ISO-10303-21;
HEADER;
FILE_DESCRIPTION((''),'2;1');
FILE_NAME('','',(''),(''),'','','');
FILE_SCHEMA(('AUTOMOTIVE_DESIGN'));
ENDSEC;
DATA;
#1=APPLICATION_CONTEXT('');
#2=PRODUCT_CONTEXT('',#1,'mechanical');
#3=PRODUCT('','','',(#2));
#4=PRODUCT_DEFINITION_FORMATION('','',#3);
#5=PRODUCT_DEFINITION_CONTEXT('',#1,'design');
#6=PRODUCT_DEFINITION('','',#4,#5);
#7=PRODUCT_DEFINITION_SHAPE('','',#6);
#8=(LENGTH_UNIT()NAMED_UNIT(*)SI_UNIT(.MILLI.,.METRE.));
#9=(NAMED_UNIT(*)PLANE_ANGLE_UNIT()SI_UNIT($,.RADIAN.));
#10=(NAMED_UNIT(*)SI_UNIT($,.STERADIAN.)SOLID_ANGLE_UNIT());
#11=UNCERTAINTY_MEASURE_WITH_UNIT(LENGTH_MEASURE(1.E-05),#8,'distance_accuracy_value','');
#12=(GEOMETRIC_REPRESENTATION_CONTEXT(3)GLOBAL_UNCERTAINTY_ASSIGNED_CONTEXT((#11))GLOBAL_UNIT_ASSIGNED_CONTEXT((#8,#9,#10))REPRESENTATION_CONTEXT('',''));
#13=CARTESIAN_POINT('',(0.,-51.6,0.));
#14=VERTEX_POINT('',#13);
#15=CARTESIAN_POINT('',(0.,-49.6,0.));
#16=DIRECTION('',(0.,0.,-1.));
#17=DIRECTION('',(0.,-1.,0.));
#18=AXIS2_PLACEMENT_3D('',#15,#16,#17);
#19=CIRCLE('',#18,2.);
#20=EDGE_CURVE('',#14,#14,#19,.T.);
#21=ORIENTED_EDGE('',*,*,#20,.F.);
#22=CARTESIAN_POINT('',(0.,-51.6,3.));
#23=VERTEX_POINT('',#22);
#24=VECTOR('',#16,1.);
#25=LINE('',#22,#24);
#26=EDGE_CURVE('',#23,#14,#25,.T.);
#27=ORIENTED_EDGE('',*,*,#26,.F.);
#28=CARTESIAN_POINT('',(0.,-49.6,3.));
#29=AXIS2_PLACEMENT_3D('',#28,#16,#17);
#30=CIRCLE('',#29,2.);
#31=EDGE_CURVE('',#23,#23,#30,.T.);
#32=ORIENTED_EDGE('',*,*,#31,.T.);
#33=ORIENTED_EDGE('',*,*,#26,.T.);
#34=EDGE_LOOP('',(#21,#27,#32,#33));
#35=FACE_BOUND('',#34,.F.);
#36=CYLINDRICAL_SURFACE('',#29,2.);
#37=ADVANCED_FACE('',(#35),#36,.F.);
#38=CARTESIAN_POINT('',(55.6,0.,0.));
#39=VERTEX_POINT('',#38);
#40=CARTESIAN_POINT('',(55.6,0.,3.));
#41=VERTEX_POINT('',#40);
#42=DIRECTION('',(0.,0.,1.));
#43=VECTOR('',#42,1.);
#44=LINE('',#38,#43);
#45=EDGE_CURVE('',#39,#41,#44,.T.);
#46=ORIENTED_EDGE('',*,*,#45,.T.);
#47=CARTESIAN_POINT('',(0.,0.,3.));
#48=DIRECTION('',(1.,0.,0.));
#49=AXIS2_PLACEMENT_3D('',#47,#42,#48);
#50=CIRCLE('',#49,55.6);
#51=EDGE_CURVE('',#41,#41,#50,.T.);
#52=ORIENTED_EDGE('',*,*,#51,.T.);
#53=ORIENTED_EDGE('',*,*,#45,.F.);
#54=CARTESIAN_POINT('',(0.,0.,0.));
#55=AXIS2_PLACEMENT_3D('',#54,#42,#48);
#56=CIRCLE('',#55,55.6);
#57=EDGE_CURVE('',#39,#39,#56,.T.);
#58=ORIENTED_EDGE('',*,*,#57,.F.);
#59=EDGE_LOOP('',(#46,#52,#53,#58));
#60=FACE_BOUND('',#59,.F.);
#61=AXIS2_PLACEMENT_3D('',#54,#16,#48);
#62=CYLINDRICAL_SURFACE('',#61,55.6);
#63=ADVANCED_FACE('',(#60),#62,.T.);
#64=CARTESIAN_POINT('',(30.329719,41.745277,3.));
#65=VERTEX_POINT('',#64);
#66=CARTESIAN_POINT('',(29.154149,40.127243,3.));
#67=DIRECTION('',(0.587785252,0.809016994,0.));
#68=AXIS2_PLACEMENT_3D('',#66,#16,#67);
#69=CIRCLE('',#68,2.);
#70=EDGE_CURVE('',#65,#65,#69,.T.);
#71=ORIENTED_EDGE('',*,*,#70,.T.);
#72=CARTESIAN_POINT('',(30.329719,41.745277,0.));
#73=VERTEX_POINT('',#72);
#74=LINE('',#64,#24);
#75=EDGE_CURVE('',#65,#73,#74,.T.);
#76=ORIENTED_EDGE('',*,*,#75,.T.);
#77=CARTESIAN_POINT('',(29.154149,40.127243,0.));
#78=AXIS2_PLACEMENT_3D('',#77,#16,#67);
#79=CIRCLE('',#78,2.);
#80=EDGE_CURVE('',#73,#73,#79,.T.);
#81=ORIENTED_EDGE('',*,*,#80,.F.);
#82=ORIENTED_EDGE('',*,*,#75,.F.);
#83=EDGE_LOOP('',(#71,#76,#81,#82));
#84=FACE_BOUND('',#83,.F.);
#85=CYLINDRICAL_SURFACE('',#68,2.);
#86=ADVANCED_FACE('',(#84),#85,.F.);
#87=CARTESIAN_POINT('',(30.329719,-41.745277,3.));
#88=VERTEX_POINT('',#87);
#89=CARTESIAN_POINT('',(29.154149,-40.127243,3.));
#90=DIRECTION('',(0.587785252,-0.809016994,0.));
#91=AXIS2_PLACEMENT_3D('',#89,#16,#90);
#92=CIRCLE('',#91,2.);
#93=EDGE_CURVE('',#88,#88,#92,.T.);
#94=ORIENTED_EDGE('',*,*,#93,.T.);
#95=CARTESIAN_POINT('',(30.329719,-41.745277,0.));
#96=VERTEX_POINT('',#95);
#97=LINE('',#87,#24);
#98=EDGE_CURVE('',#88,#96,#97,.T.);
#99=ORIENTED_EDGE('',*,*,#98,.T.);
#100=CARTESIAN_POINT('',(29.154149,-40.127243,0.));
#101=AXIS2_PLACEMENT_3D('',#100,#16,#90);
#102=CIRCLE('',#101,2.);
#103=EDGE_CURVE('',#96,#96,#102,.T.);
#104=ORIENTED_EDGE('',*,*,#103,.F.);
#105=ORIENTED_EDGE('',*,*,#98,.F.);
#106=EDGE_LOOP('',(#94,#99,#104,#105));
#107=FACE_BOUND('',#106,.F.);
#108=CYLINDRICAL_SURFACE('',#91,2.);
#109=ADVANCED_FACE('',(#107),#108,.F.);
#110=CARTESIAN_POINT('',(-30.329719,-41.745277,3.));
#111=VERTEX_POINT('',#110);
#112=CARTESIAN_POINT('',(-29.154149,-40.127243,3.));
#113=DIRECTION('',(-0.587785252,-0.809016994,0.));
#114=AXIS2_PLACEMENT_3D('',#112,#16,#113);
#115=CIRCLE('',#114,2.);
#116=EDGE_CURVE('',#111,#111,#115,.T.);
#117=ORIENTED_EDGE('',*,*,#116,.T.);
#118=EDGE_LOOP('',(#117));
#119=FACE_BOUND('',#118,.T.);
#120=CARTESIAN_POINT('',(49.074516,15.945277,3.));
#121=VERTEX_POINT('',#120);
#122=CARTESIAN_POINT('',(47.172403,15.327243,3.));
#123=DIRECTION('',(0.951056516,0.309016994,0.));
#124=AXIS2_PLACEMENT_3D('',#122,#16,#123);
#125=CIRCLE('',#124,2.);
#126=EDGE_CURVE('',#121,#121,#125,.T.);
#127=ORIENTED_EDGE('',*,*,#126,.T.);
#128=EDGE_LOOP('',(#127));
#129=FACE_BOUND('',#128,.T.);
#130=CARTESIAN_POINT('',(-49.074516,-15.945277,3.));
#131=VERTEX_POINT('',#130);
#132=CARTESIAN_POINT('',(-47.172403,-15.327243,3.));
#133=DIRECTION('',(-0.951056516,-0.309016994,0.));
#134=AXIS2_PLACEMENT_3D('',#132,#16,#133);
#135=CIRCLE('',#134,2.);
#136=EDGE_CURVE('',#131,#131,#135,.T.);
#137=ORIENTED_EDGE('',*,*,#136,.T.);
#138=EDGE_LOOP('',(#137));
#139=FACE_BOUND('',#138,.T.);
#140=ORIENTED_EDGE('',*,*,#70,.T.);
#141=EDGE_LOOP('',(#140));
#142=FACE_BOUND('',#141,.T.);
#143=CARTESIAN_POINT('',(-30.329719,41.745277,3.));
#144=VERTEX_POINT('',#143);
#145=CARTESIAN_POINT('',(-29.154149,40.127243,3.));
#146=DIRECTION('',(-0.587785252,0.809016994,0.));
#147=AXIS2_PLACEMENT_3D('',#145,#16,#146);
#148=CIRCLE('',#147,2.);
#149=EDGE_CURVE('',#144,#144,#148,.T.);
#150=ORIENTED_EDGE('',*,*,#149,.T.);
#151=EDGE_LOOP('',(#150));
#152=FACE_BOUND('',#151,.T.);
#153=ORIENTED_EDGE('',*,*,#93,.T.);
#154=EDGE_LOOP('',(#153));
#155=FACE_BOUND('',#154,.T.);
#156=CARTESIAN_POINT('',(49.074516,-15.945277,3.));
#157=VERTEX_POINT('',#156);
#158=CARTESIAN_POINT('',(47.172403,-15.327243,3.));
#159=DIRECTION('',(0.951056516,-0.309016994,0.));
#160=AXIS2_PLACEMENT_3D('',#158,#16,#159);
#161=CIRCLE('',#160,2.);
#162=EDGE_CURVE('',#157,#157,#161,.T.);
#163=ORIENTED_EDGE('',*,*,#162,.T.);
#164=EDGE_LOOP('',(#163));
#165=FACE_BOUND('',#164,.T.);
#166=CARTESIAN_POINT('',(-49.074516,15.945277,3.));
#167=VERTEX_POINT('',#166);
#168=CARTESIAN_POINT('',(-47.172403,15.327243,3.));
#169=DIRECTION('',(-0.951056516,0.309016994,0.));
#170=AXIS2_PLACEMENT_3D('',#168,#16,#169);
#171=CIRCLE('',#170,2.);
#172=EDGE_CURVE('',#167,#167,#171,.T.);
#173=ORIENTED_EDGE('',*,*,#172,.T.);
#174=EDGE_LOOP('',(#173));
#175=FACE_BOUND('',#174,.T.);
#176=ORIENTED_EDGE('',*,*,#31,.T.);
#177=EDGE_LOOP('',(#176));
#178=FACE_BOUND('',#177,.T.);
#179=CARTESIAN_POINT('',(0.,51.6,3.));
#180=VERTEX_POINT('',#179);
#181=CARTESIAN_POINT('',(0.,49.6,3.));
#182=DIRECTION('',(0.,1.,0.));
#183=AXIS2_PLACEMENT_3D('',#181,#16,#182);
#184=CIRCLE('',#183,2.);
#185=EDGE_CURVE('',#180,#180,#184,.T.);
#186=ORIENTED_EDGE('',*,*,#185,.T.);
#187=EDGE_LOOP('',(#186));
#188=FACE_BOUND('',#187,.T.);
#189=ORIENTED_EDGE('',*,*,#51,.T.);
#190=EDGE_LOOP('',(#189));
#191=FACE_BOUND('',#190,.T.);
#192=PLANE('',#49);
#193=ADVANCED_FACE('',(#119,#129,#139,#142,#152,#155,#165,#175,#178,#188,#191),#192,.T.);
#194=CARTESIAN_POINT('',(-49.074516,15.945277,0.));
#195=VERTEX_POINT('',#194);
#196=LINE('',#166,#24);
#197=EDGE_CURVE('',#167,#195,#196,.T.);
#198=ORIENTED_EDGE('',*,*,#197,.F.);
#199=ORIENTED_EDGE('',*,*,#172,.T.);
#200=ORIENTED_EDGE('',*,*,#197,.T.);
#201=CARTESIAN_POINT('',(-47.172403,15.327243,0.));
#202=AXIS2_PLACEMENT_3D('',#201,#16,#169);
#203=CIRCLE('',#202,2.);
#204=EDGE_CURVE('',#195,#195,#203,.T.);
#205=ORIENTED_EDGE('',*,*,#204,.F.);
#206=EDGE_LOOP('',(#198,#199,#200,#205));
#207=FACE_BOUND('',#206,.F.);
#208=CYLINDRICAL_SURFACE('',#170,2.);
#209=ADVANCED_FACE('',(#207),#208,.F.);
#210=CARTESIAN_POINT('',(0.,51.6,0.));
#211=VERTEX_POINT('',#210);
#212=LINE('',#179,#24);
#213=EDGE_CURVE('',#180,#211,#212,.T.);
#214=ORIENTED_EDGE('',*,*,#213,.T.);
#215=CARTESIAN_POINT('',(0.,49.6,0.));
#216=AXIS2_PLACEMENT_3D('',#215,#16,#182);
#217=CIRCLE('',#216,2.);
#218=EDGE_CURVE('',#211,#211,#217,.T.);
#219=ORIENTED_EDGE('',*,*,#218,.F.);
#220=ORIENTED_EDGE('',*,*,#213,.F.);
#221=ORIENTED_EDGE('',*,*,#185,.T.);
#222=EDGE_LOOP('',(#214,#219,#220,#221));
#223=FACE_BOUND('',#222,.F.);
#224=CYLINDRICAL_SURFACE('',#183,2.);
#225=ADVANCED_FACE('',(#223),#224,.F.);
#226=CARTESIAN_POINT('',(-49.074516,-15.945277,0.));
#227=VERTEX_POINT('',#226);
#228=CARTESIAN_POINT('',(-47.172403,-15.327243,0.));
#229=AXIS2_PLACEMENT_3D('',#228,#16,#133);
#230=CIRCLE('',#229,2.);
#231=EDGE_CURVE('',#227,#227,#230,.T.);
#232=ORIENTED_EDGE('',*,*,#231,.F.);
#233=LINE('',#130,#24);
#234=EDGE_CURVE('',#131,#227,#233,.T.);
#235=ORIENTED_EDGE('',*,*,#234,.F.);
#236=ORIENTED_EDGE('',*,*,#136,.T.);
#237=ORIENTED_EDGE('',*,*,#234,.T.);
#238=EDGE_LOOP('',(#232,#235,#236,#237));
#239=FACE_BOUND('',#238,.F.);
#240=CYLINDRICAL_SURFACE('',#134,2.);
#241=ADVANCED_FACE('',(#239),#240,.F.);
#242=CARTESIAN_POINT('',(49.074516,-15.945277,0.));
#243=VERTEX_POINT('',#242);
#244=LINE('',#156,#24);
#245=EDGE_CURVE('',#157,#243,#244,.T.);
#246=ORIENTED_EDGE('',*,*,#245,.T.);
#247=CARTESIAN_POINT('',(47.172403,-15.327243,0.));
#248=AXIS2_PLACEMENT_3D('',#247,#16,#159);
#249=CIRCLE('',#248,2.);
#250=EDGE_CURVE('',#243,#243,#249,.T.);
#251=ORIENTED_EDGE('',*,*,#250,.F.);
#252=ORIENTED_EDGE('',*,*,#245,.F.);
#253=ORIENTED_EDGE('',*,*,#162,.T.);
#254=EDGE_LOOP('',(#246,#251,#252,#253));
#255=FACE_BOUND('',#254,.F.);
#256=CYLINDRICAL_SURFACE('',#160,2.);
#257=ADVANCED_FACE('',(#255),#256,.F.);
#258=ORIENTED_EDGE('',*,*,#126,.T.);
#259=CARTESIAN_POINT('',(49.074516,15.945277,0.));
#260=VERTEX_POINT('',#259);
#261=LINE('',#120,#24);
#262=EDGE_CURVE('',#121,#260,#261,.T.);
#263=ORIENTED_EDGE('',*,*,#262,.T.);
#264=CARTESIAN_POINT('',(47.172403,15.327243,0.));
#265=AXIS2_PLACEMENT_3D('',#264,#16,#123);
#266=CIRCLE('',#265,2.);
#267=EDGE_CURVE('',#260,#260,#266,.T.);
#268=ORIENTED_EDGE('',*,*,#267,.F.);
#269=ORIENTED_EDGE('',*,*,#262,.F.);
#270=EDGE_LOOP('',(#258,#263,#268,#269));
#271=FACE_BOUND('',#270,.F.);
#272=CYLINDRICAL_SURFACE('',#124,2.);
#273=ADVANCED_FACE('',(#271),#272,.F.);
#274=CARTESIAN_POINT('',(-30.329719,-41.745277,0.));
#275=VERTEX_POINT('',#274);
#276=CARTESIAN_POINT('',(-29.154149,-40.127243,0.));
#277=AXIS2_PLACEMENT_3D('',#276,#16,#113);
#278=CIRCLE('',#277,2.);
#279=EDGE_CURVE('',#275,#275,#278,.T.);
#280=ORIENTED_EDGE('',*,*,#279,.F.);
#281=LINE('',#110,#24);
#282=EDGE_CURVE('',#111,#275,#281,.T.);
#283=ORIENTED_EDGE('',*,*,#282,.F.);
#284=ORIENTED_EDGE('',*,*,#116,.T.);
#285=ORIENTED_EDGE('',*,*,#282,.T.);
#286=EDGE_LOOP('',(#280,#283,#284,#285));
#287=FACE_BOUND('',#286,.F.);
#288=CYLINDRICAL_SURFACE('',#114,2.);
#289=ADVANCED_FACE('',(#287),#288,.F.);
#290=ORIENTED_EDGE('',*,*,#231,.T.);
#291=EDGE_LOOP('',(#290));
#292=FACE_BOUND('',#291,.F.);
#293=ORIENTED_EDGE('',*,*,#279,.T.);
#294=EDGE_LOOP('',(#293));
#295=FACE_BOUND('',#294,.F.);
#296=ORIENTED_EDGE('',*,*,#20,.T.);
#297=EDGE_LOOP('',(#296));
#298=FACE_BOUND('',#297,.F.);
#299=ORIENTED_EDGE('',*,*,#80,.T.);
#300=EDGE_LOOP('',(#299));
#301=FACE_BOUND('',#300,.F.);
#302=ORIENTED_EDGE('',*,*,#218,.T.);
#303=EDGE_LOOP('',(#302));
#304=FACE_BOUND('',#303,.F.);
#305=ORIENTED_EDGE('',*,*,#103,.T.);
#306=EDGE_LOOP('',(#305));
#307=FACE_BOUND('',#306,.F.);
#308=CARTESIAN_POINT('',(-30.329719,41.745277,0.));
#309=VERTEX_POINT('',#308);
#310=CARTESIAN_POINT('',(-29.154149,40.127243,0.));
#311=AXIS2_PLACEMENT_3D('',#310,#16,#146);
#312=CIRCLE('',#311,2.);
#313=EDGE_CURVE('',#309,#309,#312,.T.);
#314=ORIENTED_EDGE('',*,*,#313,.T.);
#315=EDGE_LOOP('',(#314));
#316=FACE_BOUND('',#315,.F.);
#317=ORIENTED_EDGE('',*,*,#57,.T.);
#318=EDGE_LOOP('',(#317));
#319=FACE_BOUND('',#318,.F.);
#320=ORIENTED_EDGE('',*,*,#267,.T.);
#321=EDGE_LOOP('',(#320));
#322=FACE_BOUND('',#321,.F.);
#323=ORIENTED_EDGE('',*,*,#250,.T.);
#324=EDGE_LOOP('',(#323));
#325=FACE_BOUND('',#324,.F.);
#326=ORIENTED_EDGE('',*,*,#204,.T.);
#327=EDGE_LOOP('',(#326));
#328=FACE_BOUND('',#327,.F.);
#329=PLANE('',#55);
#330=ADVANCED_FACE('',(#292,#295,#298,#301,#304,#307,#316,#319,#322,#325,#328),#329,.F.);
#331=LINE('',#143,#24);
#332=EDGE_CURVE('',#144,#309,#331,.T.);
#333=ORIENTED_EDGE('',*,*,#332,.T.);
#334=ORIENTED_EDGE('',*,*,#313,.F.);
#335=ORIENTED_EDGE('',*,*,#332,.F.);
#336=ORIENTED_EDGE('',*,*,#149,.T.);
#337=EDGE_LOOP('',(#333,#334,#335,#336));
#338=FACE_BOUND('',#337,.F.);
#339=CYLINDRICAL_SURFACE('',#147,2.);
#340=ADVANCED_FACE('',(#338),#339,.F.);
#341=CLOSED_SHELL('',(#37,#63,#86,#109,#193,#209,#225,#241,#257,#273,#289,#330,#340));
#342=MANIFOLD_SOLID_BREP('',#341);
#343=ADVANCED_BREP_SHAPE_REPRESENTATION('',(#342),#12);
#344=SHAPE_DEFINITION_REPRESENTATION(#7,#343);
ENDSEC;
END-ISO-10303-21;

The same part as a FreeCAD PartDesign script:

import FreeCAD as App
import Part
import Sketcher
Q = App.Units.Quantity

doc = App.newDocument("Part")
params = doc.addObject("Spreadsheet::Sheet", "Params")
for row, (alias, value) in enumerate([
    ("sketch1_diameter", "111.2 mm"),
    ("pad1_length", "3 mm"),
    ("sketch2_diameter", "4 mm"),
    ("hole_diameter", "4 mm"),
], start=1):
    params.set(f"A{row}", alias)
    params.set(f"B{row}", "=" + value)
    params.setAlias(f"B{row}", alias)

body = doc.addObject("PartDesign::Body", "Body")

sketch1 = body.newObject("Sketcher::SketchObject", "Sketch")
sketch1.AttachmentSupport = (doc.getObject("XY_Plane"), [""])
sketch1.MapMode = "FlatFace"
sketch1.addGeometry(Part.Circle(App.Vector(0, 0, 0), App.Vector(0, 0, 1), 55.6), False)
sketch1.addConstraint([
    Sketcher.Constraint("Coincident", 0, 3, -1, 1),
    Sketcher.Constraint("Diameter", 0, Q("111.2 mm")),
])
sketch1.setExpression("Constraints[1]", "Params.sketch1_diameter")
pad1 = body.newObject("PartDesign::Pad", "Pad")
pad1.Profile = sketch1
pad1.setExpression("Length", "Params.pad1_length")

sketch2 = body.newObject("Sketcher::SketchObject", "Sketch001")
sketch2.AttachmentSupport = (doc.getObject("XY_Plane"), [""])
sketch2.MapMode = "FlatFace"
sketch2.AttachmentOffset = App.Placement(App.Vector(0, 0, 3), App.Rotation())
sketch2.addGeometry(Part.Circle(App.Vector(0, -49.6, 0), App.Vector(0, 0, 1), 2), False)
sketch2.addConstraint([
    Sketcher.Constraint("PointOnObject", 0, 3, -2),
    Sketcher.Constraint("Diameter", 0, Q("4 mm")),
    Sketcher.Constraint("DistanceY", 0, 3, -1, 1, Q("49.6 mm")),
])
sketch2.setExpression("Constraints[1]", "Params.sketch2_diameter")
doc.recompute()
hole = body.newObject("PartDesign::Hole", "Hole")
hole.Profile = sketch2
hole.ThreadType = "None"
hole.setExpression("Diameter", "Params.hole_diameter")
hole.DepthType = "ThroughAll"
doc.recompute()

polarpattern = body.newObject("PartDesign::PolarPattern", "PolarPattern")
polarpattern.Originals = [hole]
polarpattern.Axis = (doc.getObject("Z_Axis"), [""])
polarpattern.Angle = 360
polarpattern.Occurrences = 10
body.Tip = polarpattern

doc.recompute()
